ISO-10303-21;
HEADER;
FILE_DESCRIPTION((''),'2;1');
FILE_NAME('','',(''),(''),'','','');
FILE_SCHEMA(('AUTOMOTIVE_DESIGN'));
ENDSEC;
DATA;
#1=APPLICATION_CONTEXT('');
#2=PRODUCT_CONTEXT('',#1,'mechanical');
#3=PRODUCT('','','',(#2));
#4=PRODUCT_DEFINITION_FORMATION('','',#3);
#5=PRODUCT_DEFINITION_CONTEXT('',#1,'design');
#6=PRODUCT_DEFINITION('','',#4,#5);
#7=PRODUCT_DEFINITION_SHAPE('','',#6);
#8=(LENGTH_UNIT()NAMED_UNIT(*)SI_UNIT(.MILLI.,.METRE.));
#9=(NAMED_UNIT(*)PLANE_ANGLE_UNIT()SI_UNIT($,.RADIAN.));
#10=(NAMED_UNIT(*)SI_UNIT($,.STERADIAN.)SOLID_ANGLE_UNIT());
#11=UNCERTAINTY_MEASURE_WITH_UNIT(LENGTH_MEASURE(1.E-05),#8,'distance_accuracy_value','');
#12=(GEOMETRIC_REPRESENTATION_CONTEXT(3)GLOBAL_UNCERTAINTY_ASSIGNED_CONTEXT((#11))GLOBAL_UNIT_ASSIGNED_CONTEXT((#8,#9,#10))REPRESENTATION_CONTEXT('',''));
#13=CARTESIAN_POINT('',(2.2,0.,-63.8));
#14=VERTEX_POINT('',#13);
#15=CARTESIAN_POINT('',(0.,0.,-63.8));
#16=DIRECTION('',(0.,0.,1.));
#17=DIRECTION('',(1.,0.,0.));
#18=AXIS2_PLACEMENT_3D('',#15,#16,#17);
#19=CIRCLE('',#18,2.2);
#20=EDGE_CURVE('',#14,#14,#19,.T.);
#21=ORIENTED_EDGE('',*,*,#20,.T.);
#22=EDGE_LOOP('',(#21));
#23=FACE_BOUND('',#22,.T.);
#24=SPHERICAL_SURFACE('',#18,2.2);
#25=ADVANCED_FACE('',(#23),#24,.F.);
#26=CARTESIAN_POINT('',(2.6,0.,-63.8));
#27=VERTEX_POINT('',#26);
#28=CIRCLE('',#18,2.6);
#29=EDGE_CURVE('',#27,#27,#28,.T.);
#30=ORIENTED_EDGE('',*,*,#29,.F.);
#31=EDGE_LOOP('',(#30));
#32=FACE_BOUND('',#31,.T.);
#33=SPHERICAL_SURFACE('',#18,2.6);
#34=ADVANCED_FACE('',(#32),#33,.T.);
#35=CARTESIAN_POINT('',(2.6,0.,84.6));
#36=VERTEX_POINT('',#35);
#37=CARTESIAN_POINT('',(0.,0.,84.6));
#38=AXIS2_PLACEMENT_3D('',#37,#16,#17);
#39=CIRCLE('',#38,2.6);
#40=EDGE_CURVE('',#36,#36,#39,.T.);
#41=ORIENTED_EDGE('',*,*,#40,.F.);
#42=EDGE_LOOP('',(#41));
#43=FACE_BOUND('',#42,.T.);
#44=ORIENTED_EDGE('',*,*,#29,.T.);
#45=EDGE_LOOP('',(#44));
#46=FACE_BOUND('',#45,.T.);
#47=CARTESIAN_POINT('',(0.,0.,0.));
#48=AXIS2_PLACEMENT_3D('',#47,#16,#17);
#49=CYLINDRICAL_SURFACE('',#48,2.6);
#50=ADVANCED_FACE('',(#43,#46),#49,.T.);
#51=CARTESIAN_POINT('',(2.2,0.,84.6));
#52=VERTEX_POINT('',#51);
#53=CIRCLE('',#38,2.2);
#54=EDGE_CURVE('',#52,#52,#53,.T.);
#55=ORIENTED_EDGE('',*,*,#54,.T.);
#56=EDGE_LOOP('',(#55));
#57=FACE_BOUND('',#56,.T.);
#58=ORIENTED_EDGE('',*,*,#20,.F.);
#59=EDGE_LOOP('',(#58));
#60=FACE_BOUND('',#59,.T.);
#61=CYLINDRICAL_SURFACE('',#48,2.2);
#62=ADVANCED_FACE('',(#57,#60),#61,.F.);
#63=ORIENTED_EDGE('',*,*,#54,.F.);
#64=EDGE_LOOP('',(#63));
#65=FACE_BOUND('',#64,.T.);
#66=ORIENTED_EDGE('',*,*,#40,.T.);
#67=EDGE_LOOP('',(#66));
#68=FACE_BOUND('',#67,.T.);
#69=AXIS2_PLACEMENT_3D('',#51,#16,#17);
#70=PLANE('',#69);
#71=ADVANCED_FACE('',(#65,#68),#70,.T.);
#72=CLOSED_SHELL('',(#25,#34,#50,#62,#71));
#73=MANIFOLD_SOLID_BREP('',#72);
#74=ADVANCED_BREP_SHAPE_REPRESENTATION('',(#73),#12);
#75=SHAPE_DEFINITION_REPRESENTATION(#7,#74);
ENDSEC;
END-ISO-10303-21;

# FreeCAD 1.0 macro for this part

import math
import FreeCAD as App
import Part
import Sketcher
from FreeCAD import Vector

doc = App.newDocument("Part")
body = doc.addObject("PartDesign::Body", "Body")

sketch1 = body.newObject("Sketcher::SketchObject", "Sketch")
sketch1.AttachmentSupport = (doc.getObject("XZ_Plane"), [""])
sketch1.MapMode = "FlatFace"
sketch1.addGeometry([
    Part.LineSegment(Vector(2.2, -63.8, 0), Vector(2.2, 84.6, 0)),
    Part.LineSegment(Vector(2.2, 84.6, 0), Vector(2.6, 84.6, 0)),
    Part.LineSegment(Vector(2.6, 84.6, 0), Vector(2.6, -63.8, 0)),
    Part.ArcOfCircle(Part.Circle(Vector(0, -63.8, 0), Vector(0, 0, 1), 2.6), math.radians(-90), math.radians(0)),
    Part.LineSegment(Vector(0, -66.4, 0), Vector(0, -66, 0)),
    Part.ArcOfCircle(Part.Circle(Vector(0, -63.8, 0), Vector(0, 0, 1), 2.2), math.radians(-90), math.radians(0)),
], False)
sketch1.addConstraint([
    Sketcher.Constraint("Coincident", 0, 2, 1, 1),
    Sketcher.Constraint("Coincident", 1, 2, 2, 1),
    Sketcher.Constraint("Tangent", 2, 2, 3, 2),
    Sketcher.Constraint("Coincident", 3, 1, 4, 1),
    Sketcher.Constraint("Coincident", 4, 2, 5, 1),
    Sketcher.Constraint("Tangent", 5, 2, 0, 1),
    Sketcher.Constraint("Vertical", 0),
    Sketcher.Constraint("Horizontal", 1),
    Sketcher.Constraint("Vertical", 2),
    Sketcher.Constraint("Vertical", 4),
    Sketcher.Constraint("Coincident", 5, 3, 3, 3),
    Sketcher.Constraint("PointOnObject", 3, 3, -2),
    Sketcher.Constraint("PointOnObject", 3, 1, -2),
    Sketcher.Constraint("Radius", 3, 2.6),
    Sketcher.Constraint("Radius", 5, 2.2),
    Sketcher.Constraint("DistanceY", 0, 1, 0, 2, 148.4),
    Sketcher.Constraint("DistanceY", 4, 2, -1, 1, 66.0),
])
revolution = body.newObject("PartDesign::Revolution", "Revolution")
revolution.Profile = sketch1
revolution.ReferenceAxis = (sketch1, ["V_Axis"])
revolution.Angle = 360

doc.recompute()
